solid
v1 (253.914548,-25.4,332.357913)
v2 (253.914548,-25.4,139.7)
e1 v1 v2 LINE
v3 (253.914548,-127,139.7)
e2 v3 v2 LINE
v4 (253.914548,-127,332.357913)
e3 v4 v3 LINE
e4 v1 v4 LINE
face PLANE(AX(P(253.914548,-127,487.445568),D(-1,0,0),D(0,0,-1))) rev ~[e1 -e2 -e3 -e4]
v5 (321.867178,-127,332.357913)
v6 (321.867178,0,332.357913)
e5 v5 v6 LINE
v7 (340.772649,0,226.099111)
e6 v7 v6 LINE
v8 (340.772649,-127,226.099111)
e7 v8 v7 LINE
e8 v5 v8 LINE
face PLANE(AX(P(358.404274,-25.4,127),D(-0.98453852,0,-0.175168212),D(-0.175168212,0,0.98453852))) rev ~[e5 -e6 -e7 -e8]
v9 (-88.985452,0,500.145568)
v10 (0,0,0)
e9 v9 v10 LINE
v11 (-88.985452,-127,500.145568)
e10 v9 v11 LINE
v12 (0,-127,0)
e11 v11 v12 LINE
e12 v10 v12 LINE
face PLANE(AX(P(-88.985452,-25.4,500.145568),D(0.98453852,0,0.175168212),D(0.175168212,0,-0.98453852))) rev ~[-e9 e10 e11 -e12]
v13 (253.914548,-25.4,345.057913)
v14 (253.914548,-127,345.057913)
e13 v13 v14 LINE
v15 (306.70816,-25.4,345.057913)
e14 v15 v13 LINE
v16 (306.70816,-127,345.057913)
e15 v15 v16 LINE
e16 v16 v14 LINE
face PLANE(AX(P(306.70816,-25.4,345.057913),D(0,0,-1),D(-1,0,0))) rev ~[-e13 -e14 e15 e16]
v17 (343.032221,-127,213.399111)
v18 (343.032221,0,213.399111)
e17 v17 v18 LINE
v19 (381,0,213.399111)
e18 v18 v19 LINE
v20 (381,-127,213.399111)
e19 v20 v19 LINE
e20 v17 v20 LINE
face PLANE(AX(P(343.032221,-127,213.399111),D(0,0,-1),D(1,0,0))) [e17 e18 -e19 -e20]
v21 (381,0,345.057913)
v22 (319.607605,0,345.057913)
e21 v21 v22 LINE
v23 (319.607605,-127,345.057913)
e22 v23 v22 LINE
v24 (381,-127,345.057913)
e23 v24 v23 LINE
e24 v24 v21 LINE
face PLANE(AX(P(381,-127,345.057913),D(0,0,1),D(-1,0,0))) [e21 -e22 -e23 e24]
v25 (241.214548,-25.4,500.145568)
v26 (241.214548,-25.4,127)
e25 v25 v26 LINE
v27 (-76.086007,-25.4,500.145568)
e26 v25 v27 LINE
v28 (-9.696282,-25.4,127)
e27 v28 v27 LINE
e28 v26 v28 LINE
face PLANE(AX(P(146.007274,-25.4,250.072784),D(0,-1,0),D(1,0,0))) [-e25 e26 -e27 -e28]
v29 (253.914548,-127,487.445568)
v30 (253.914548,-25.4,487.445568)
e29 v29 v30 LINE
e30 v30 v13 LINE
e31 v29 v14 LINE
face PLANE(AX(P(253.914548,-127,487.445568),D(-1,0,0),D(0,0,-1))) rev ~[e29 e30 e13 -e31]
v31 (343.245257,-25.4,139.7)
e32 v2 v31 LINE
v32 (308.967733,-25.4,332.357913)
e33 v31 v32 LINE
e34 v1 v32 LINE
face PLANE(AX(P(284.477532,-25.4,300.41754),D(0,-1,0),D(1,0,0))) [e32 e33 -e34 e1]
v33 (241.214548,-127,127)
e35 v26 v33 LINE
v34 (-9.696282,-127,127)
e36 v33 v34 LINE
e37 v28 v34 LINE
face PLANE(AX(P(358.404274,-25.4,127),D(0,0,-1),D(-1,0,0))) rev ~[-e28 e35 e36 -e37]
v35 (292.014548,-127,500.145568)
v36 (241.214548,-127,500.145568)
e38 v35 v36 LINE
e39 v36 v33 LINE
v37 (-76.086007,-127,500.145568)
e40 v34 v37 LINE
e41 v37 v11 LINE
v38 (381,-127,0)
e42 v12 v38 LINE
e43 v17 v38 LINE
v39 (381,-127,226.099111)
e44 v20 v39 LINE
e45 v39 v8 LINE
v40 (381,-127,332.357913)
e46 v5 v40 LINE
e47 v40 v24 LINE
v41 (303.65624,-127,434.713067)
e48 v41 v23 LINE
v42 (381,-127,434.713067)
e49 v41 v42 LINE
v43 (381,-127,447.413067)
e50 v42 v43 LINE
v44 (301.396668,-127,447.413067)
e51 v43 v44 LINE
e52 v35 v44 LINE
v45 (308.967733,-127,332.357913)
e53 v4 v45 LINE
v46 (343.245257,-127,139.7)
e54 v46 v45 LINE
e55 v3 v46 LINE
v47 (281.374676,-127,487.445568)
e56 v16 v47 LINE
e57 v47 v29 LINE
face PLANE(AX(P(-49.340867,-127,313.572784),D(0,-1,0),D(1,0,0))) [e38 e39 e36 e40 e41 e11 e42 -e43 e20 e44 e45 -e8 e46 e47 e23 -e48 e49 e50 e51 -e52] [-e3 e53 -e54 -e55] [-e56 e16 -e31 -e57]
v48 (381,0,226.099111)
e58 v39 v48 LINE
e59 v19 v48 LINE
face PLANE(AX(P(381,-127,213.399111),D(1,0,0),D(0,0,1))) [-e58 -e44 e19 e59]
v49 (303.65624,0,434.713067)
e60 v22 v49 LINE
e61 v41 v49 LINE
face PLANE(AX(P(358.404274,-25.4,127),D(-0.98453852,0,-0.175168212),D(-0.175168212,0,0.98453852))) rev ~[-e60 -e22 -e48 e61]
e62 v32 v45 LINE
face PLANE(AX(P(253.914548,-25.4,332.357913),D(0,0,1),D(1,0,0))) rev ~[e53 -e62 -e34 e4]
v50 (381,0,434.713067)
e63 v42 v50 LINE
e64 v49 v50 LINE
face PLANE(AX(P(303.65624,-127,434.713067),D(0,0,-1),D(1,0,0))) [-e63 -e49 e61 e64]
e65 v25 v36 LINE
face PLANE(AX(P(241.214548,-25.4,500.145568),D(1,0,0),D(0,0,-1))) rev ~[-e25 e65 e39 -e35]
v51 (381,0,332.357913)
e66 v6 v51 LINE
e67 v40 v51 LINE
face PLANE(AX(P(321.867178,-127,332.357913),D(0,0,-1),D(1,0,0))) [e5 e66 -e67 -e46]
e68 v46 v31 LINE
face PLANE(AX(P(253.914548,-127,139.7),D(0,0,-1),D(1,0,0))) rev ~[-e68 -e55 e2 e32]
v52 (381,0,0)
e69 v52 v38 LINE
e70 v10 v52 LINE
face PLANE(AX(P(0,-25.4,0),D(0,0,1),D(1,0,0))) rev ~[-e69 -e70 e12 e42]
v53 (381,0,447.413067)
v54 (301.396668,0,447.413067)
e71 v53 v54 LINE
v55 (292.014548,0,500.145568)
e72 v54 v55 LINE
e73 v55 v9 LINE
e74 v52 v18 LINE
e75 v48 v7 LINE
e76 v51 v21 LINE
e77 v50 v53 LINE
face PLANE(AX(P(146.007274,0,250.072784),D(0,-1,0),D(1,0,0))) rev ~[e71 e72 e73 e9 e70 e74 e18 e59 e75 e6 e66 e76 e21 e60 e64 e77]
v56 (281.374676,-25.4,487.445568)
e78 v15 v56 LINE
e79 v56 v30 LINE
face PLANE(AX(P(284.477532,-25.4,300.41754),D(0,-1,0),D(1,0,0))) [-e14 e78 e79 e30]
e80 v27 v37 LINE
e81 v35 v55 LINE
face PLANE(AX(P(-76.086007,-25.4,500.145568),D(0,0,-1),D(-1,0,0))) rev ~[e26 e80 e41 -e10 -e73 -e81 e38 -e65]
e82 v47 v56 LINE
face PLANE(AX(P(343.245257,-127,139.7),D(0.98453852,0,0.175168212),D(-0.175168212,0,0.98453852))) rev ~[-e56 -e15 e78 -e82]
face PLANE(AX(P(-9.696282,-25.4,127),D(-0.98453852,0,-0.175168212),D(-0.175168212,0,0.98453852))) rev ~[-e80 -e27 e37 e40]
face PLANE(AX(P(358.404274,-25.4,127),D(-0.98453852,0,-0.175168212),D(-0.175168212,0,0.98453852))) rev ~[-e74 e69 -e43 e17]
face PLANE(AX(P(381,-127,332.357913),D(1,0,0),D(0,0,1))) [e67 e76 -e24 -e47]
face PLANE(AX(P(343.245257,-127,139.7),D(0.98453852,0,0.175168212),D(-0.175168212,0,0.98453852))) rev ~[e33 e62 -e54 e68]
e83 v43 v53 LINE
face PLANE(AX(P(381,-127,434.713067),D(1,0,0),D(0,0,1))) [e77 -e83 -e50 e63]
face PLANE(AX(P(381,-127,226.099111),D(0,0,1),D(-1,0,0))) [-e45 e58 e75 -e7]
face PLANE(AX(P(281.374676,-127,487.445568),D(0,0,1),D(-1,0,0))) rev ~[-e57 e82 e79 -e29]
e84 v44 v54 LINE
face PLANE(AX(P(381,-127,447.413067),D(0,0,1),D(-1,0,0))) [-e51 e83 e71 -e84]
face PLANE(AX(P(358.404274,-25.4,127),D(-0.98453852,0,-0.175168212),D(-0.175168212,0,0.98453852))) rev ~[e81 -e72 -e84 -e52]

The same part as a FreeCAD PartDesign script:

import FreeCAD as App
import Part
import Sketcher

V = App.Vector
Q = App.Units.Quantity

doc = App.newDocument("Part")
body = doc.addObject("PartDesign::Body", "Body")

# Sketch on XZ plane
sketch1 = body.newObject("Sketcher::SketchObject", "Sketch")
sketch1.AttachmentSupport = (doc.getObject("XZ_Plane"), [""])
sketch1.MapMode = "FlatFace"
sketch1.addGeometry(Part.LineSegment(V(-89, 500, 0), V(0, 0, 0)), False)
sketch1.addGeometry(Part.LineSegment(V(0, 0, 0), V(381, 0, 0)), False)
sketch1.addGeometry(Part.LineSegment(V(381, 0, 0), V(292, 500, 0)), False)
sketch1.addGeometry(Part.LineSegment(V(292, 500, 0), V(-89, 500, 0)), False)
sketch1.addConstraint(Sketcher.Constraint("Coincident", 0, 2, 1, 1))
sketch1.addConstraint(Sketcher.Constraint("Coincident", 1, 2, 2, 1))
sketch1.addConstraint(Sketcher.Constraint("Coincident", 2, 2, 3, 1))
sketch1.addConstraint(Sketcher.Constraint("Coincident", 3, 2, 0, 1))
sketch1.addConstraint(Sketcher.Constraint("Horizontal", 1))
sketch1.addConstraint(Sketcher.Constraint("Horizontal", 3))
sketch1.addConstraint(Sketcher.Constraint("Coincident", 0, 2, -1, 1))
sketch1.addConstraint(Sketcher.Constraint("Parallel", 0, 2))
sketch1.addConstraint(Sketcher.Constraint("DistanceX", 1, 1, 1, 2, Q("15 in")))
sketch1.addConstraint(Sketcher.Constraint("Distance", 0, Q("20 in")))
sketch1.addConstraint(Sketcher.Constraint("DistanceX", -1, 1, 2, 2, 292.014548))
pad1 = body.newObject("PartDesign::Pad", "Pad")
pad1.Profile = sketch1
pad1.Length = Q("1 in")

# Sketch on XZ plane
sketch2 = body.newObject("Sketcher::SketchObject", "Sketch001")
sketch2.AttachmentSupport = (doc.getObject("XZ_Plane"), [""])
sketch2.MapMode = "FlatFace"
sketch2.AttachmentOffset = App.Placement(V(0, 0, 1 * 25.4), App.Rotation())
sketch2.addGeometry(Part.LineSegment(V(-23, 127, 0), V(0, 0, 0)), False)
sketch2.addGeometry(Part.LineSegment(V(0, 0, 0), V(381, 0, 0)), False)
sketch2.addGeometry(Part.LineSegment(V(381, 0, 0), V(358, 127, 0)), False)
sketch2.addGeometry(Part.LineSegment(V(358, 127, 0), V(-23, 127, 0)), False)
sketch2.addConstraint(Sketcher.Constraint("Coincident", 0, 2, 1, 1))
sketch2.addConstraint(Sketcher.Constraint("Coincident", 1, 2, 2, 1))
sketch2.addConstraint(Sketcher.Constraint("Coincident", 2, 2, 3, 1))
sketch2.addConstraint(Sketcher.Constraint("Coincident", 3, 2, 0, 1))
sketch2.addConstraint(Sketcher.Constraint("Horizontal", 1))
sketch2.addConstraint(Sketcher.Constraint("Horizontal", 3))
sketch2.addConstraint(Sketcher.Constraint("Coincident", 0, 2, -1, 1))
sketch2.addConstraint(Sketcher.Constraint("Parallel", 0, 2))
sketch2.addConstraint(Sketcher.Constraint("DistanceX", 1, 1, 1, 2, Q("15 in")))
sketch2.addConstraint(Sketcher.Constraint("DistanceY", -1, 1, 2, 2, Q("5 in")))
sketch2.addConstraint(Sketcher.Constraint("Distance", 0, 128.994445))
pad2 = body.newObject("PartDesign::Pad", "Pad001")
pad2.Profile = sketch2
pad2.Length = Q("4 in")

# Sketch on XZ plane
sketch3 = body.newObject("Sketcher::SketchObject", "Sketch002")
sketch3.AttachmentSupport = (doc.getObject("XZ_Plane"), [""])
sketch3.MapMode = "FlatFace"
sketch3.AttachmentOffset = App.Placement(V(0, 0, 1 * 25.4), App.Rotation())
sketch3.addGeometry(Part.LineSegment(V(292, 500, 0), V(241, 500, 0)), False)
sketch3.addGeometry(Part.LineSegment(V(241, 500, 0), V(241, 127, 0)), False)
sketch3.addGeometry(Part.LineSegment(V(241, 127, 0), V(358, 127, 0)), False)
sketch3.addGeometry(Part.LineSegment(V(358, 127, 0), V(292, 500, 0)), False)
sketch3.addConstraint(Sketcher.Constraint("Coincident", 0, 2, 1, 1))
sketch3.addConstraint(Sketcher.Constraint("Coincident", 1, 2, 2, 1))
sketch3.addConstraint(Sketcher.Constraint("Coincident", 2, 2, 3, 1))
sketch3.addConstraint(Sketcher.Constraint("Coincident", 3, 2, 0, 1))
sketch3.addConstraint(Sketcher.Constraint("Horizontal", 0))
sketch3.addConstraint(Sketcher.Constraint("Vertical", 1))
sketch3.addConstraint(Sketcher.Constraint("Horizontal", 2))
sketch3.addConstraint(Sketcher.Constraint("DistanceX", 0, 2, 0, 1, Q("2 in")))
sketch3.addConstraint(Sketcher.Constraint("DistanceY", -1, 1, 1, 2, Q("5 in")))
sketch3.addConstraint(Sketcher.Constraint("DistanceY", 1, 2, 1, 1, 373.145568))
sketch3.addConstraint(Sketcher.Constraint("DistanceX", 2, 1, 2, 2, 117.189725))
sketch3.addConstraint(Sketcher.Constraint("DistanceX", -1, 1, 0, 2, 241.214548))
pad3 = body.newObject("PartDesign::Pad", "Pad002")
pad3.Profile = sketch3
pad3.Length = Q("4 in")

# Sketch on XZ plane
sketch4 = body.newObject("Sketcher::SketchObject", "Sketch003")
sketch4.AttachmentSupport = (doc.getObject("XZ_Plane"), [""])
sketch4.MapMode = "FlatFace"
sketch4.AttachmentOffset = App.Placement(V(0, 0, 5 * 25.4), App.Rotation())
sketch4.addGeometry(Part.LineSegment(V(281, 487, 0), V(254, 487, 0)), False)
sketch4.addGeometry(Part.LineSegment(V(254, 487, 0), V(254, 140, 0)), False)
sketch4.addGeometry(Part.LineSegment(V(254, 140, 0), V(343, 140, 0)), False)
sketch4.addGeometry(Part.LineSegment(V(343, 140, 0), V(281, 487, 0)), False)
sketch4.addConstraint(Sketcher.Constraint("Coincident", 0, 2, 1, 1))
sketch4.addConstraint(Sketcher.Constraint("Coincident", 1, 2, 2, 1))
sketch4.addConstraint(Sketcher.Constraint("Coincident", 2, 2, 3, 1))
sketch4.addConstraint(Sketcher.Constraint("Coincident", 3, 2, 0, 1))
sketch4.addConstraint(Sketcher.Constraint("Horizontal", 0))
sketch4.addConstraint(Sketcher.Constraint("Vertical", 1))
sketch4.addConstraint(Sketcher.Constraint("Horizontal", 2))
sketch4.addConstraint(Sketcher.Constraint("DistanceY", -1, 1, 1, 2, Q("5.5 in")))
sketch4.addConstraint(Sketcher.Constraint("DistanceX", 0, 2, 0, 1, 27.460128))
sketch4.addConstraint(Sketcher.Constraint("DistanceX", 2, 1, 2, 2, 89.330708))
sketch4.addConstraint(Sketcher.Constraint("DistanceY", 1, 2, 1, 1, 347.745568))
sketch4.addConstraint(Sketcher.Constraint("DistanceX", -1, 1, 0, 2, 253.914548))
pocket1 = body.newObject("PartDesign::Pocket", "Pocket")
pocket1.Profile = sketch4
pocket1.Length = Q("4 in")

# Sketch on XZ plane
sketch5 = body.newObject("Sketcher::SketchObject", "Sketch004")
sketch5.AttachmentSupport = (doc.getObject("XZ_Plane"), [""])
sketch5.MapMode = "FlatFace"
sketch5.AttachmentOffset = App.Placement(V(0, 0, 5 * 25.4), App.Rotation())
sketch5.addGeometry(Part.LineSegment(V(301, 447, 0), V(304, 435, 0)), False)
sketch5.addGeometry(Part.LineSegment(V(304, 435, 0), V(381, 435, 0)), False)
sketch5.addGeometry(Part.LineSegment(V(381, 435, 0), V(381, 447, 0)), False)
sketch5.addGeometry(Part.LineSegment(V(381, 447, 0), V(301, 447, 0)), False)
sketch5.addGeometry(Part.LineSegment(V(320, 345, 0), V(322, 332, 0)), False)
sketch5.addGeometry(Part.LineSegment(V(322, 332, 0), V(381, 332, 0)), False)
sketch5.addGeometry(Part.LineSegment(V(381, 332, 0), V(381, 345, 0)), False)
sketch5.addGeometry(Part.LineSegment(V(381, 345, 0), V(320, 345, 0)), False)
sketch5.addGeometry(Part.LineSegment(V(343, 213, 0), V(381, 213, 0)), False)
sketch5.addGeometry(Part.LineSegment(V(381, 213, 0), V(381, 226, 0)), False)
sketch5.addGeometry(Part.LineSegment(V(381, 226, 0), V(341, 226, 0)), False)
sketch5.addGeometry(Part.LineSegment(V(341, 226, 0), V(343, 213, 0)), False)
sketch5.addConstraint(Sketcher.Constraint("Coincident", 0, 2, 1, 1))
sketch5.addConstraint(Sketcher.Constraint("Coincident", 1, 2, 2, 1))
sketch5.addConstraint(Sketcher.Constraint("Coincident", 2, 2, 3, 1))
sketch5.addConstraint(Sketcher.Constraint("Coincident", 3, 2, 0, 1))
sketch5.addConstraint(Sketcher.Constraint("Coincident", 4, 2, 5, 1))
sketch5.addConstraint(Sketcher.Constraint("Coincident", 5, 2, 6, 1))
sketch5.addConstraint(Sketcher.Constraint("Coincident", 6, 2, 7, 1))
sketch5.addConstraint(Sketcher.Constraint("Coincident", 7, 2, 4, 1))
sketch5.addConstraint(Sketcher.Constraint("Coincident", 8, 2, 9, 1))
sketch5.addConstraint(Sketcher.Constraint("Coincident", 9, 2, 10, 1))
sketch5.addConstraint(Sketcher.Constraint("Coincident", 10, 2, 11, 1))
sketch5.addConstraint(Sketcher.Constraint("Coincident", 11, 2, 8, 1))
sketch5.addConstraint(Sketcher.Constraint("Horizontal", 1))
sketch5.addConstraint(Sketcher.Constraint("Vertical", 2))
sketch5.addConstraint(Sketcher.Constraint("Horizontal", 3))
sketch5.addConstraint(Sketcher.Constraint("Horizontal", 5))
sketch5.addConstraint(Sketcher.Constraint("Vertical", 6))
sketch5.addConstraint(Sketcher.Constraint("Horizontal", 7))
sketch5.addConstraint(Sketcher.Constraint("Horizontal", 8))
sketch5.addConstraint(Sketcher.Constraint("Vertical", 9))
sketch5.addConstraint(Sketcher.Constraint("Horizontal", 10))
sketch5.addConstraint(Sketcher.Constraint("Parallel", 0, 4))
sketch5.addConstraint(Sketcher.Constraint("Parallel", 4, 11))
sketch5.addConstraint(Sketcher.Constraint("Vertical", 2, 2, 5, 2))
sketch5.addConstraint(Sketcher.Constraint("Vertical", 6, 2, 8, 2))
sketch5.addConstraint(Sketcher.Constraint("Equal", 2, 6))
sketch5.addConstraint(Sketcher.Constraint("Equal", 6, 9))
sketch5.addConstraint(Sketcher.Constraint("DistanceY", 2, 1, 2, 2, Q("0.5 in")))
sketch5.addConstraint(Sketcher.Constraint("DistanceX", -1, 1, 1, 2, Q("15 in")))
sketch5.addConstraint(Sketcher.Constraint("DistanceX", 1, 1, 1, 2, 77.34376))
sketch5.addConstraint(Sketcher.Constraint("DistanceX", 8, 1, 8, 2, 37.967779))
sketch5.addConstraint(Sketcher.Constraint("DistanceX", 10, 2, 10, 1, 40.227351))
sketch5.addConstraint(Sketcher.Constraint("DistanceX", 5, 1, 5, 2, 59.132822))
sketch5.addConstraint(Sketcher.Constraint("DistanceY", -1, 1, 8, 2, 213.399111))
sketch5.addConstraint(Sketcher.Constraint("DistanceY", -1, 1, 0, 2, 434.713067))
sketch5.addConstraint(Sketcher.Constraint("DistanceY", -1, 1, 4, 2, 332.357913))
pad4 = body.newObject("PartDesign::Pad", "Pad003")
pad4.Profile = sketch5
pad4.Length = Q("5 in")
pad4.Reversed = True

# Sketch on XZ plane
sketch6 = body.newObject("Sketcher::SketchObject", "Sketch005")
sketch6.AttachmentSupport = (doc.getObject("XZ_Plane"), [""])
sketch6.MapMode = "FlatFace"
sketch6.AttachmentOffset = App.Placement(V(0, 0, 1 * 25.4), App.Rotation())
sketch6.addGeometry(Part.LineSegment(V(309, 332, 0), V(307, 345, 0)), False)
sketch6.addGeometry(Part.LineSegment(V(307, 345, 0), V(254, 345, 0)), False)
sketch6.addGeometry(Part.LineSegment(V(254, 345, 0), V(254, 332, 0)), False)
sketch6.addGeometry(Part.LineSegment(V(254, 332, 0), V(309, 332, 0)), False)
sketch6.addConstraint(Sketcher.Constraint("Coincident", 0, 2, 1, 1))
sketch6.addConstraint(Sketcher.Constraint("Coincident", 1, 2, 2, 1))
sketch6.addConstraint(Sketcher.Constraint("Coincident", 2, 2, 3, 1))
sketch6.addConstraint(Sketcher.Constraint("Coincident", 3, 2, 0, 1))
sketch6.addConstraint(Sketcher.Constraint("Horizontal", 1))
sketch6.addConstraint(Sketcher.Constraint("Vertical", 2))
sketch6.addConstraint(Sketcher.Constraint("Horizontal", 3))
sketch6.addConstraint(Sketcher.Constraint("DistanceY", 2, 2, 2, 1, Q("0.5 in")))
sketch6.addConstraint(Sketcher.Constraint("DistanceX", 1, 2, 1, 1, 52.793612))
sketch6.addConstraint(Sketcher.Constraint("DistanceX", 3, 1, 3, 2, 55.053185))
sketch6.addConstraint(Sketcher.Constraint("DistanceX", -1, 1, 0, 2, 306.70816))
sketch6.addConstraint(Sketcher.Constraint("DistanceY", -1, 1, 0, 2, 345.057913))
pad5 = body.newObject("PartDesign::Pad", "Pad004")
pad5.Profile = sketch6
pad5.Length = Q("4 in")

# Sketch on XZ plane
sketch7 = body.newObject("Sketcher::SketchObject", "Sketch006")
sketch7.AttachmentSupport = (doc.getObject("XZ_Plane"), [""])
sketch7.MapMode = "FlatFace"
sketch7.AttachmentOffset = App.Placement(V(0, 0, 1 * 25.4), App.Rotation())
sketch7.addGeometry(Part.LineSegment(V(-10, 127, 0), V(-76, 500, 0)), False)
sketch7.addGeometry(Part.LineSegment(V(-76, 500, 0), V(-89, 500, 0)), False)
sketch7.addGeometry(Part.LineSegment(V(-89, 500, 0), V(-23, 127, 0)), False)
sketch7.addGeometry(Part.LineSegment(V(-23, 127, 0), V(-10, 127, 0)), False)
sketch7.addConstraint(Sketcher.Constraint("Coincident", 0, 2, 1, 1))
sketch7.addConstraint(Sketcher.Constraint("Coincident", 1, 2, 2, 1))
sketch7.addConstraint(Sketcher.Constraint("Coincident", 2, 2, 3, 1))
sketch7.addConstraint(Sketcher.Constraint("Coincident", 3, 2, 0, 1))
sketch7.addConstraint(Sketcher.Constraint("Horizontal", 1))
sketch7.addConstraint(Sketcher.Constraint("Horizontal", 3))
sketch7.addConstraint(Sketcher.Constraint("Parallel", 0, 2))
sketch7.addConstraint(Sketcher.Constraint("DistanceY", -1, 1, 2, 2, Q("5 in")))
sketch7.addConstraint(Sketcher.Constraint("DistanceX", 1, 2, 1, 1, 12.899445))
sketch7.addConstraint(Sketcher.Constraint("DistanceY", -1, 1, 0, 2, 500.145568))
sketch7.addConstraint(Sketcher.Constraint("DistanceX", 1, 2, -1, 1, 88.985452))
sketch7.addConstraint(Sketcher.Constraint("DistanceX", 3, 2, -1, 1, 9.696282))
pad6 = body.newObject("PartDesign::Pad", "Pad005")
pad6.Profile = sketch7
pad6.Length = Q("4 in")

doc.recompute()
